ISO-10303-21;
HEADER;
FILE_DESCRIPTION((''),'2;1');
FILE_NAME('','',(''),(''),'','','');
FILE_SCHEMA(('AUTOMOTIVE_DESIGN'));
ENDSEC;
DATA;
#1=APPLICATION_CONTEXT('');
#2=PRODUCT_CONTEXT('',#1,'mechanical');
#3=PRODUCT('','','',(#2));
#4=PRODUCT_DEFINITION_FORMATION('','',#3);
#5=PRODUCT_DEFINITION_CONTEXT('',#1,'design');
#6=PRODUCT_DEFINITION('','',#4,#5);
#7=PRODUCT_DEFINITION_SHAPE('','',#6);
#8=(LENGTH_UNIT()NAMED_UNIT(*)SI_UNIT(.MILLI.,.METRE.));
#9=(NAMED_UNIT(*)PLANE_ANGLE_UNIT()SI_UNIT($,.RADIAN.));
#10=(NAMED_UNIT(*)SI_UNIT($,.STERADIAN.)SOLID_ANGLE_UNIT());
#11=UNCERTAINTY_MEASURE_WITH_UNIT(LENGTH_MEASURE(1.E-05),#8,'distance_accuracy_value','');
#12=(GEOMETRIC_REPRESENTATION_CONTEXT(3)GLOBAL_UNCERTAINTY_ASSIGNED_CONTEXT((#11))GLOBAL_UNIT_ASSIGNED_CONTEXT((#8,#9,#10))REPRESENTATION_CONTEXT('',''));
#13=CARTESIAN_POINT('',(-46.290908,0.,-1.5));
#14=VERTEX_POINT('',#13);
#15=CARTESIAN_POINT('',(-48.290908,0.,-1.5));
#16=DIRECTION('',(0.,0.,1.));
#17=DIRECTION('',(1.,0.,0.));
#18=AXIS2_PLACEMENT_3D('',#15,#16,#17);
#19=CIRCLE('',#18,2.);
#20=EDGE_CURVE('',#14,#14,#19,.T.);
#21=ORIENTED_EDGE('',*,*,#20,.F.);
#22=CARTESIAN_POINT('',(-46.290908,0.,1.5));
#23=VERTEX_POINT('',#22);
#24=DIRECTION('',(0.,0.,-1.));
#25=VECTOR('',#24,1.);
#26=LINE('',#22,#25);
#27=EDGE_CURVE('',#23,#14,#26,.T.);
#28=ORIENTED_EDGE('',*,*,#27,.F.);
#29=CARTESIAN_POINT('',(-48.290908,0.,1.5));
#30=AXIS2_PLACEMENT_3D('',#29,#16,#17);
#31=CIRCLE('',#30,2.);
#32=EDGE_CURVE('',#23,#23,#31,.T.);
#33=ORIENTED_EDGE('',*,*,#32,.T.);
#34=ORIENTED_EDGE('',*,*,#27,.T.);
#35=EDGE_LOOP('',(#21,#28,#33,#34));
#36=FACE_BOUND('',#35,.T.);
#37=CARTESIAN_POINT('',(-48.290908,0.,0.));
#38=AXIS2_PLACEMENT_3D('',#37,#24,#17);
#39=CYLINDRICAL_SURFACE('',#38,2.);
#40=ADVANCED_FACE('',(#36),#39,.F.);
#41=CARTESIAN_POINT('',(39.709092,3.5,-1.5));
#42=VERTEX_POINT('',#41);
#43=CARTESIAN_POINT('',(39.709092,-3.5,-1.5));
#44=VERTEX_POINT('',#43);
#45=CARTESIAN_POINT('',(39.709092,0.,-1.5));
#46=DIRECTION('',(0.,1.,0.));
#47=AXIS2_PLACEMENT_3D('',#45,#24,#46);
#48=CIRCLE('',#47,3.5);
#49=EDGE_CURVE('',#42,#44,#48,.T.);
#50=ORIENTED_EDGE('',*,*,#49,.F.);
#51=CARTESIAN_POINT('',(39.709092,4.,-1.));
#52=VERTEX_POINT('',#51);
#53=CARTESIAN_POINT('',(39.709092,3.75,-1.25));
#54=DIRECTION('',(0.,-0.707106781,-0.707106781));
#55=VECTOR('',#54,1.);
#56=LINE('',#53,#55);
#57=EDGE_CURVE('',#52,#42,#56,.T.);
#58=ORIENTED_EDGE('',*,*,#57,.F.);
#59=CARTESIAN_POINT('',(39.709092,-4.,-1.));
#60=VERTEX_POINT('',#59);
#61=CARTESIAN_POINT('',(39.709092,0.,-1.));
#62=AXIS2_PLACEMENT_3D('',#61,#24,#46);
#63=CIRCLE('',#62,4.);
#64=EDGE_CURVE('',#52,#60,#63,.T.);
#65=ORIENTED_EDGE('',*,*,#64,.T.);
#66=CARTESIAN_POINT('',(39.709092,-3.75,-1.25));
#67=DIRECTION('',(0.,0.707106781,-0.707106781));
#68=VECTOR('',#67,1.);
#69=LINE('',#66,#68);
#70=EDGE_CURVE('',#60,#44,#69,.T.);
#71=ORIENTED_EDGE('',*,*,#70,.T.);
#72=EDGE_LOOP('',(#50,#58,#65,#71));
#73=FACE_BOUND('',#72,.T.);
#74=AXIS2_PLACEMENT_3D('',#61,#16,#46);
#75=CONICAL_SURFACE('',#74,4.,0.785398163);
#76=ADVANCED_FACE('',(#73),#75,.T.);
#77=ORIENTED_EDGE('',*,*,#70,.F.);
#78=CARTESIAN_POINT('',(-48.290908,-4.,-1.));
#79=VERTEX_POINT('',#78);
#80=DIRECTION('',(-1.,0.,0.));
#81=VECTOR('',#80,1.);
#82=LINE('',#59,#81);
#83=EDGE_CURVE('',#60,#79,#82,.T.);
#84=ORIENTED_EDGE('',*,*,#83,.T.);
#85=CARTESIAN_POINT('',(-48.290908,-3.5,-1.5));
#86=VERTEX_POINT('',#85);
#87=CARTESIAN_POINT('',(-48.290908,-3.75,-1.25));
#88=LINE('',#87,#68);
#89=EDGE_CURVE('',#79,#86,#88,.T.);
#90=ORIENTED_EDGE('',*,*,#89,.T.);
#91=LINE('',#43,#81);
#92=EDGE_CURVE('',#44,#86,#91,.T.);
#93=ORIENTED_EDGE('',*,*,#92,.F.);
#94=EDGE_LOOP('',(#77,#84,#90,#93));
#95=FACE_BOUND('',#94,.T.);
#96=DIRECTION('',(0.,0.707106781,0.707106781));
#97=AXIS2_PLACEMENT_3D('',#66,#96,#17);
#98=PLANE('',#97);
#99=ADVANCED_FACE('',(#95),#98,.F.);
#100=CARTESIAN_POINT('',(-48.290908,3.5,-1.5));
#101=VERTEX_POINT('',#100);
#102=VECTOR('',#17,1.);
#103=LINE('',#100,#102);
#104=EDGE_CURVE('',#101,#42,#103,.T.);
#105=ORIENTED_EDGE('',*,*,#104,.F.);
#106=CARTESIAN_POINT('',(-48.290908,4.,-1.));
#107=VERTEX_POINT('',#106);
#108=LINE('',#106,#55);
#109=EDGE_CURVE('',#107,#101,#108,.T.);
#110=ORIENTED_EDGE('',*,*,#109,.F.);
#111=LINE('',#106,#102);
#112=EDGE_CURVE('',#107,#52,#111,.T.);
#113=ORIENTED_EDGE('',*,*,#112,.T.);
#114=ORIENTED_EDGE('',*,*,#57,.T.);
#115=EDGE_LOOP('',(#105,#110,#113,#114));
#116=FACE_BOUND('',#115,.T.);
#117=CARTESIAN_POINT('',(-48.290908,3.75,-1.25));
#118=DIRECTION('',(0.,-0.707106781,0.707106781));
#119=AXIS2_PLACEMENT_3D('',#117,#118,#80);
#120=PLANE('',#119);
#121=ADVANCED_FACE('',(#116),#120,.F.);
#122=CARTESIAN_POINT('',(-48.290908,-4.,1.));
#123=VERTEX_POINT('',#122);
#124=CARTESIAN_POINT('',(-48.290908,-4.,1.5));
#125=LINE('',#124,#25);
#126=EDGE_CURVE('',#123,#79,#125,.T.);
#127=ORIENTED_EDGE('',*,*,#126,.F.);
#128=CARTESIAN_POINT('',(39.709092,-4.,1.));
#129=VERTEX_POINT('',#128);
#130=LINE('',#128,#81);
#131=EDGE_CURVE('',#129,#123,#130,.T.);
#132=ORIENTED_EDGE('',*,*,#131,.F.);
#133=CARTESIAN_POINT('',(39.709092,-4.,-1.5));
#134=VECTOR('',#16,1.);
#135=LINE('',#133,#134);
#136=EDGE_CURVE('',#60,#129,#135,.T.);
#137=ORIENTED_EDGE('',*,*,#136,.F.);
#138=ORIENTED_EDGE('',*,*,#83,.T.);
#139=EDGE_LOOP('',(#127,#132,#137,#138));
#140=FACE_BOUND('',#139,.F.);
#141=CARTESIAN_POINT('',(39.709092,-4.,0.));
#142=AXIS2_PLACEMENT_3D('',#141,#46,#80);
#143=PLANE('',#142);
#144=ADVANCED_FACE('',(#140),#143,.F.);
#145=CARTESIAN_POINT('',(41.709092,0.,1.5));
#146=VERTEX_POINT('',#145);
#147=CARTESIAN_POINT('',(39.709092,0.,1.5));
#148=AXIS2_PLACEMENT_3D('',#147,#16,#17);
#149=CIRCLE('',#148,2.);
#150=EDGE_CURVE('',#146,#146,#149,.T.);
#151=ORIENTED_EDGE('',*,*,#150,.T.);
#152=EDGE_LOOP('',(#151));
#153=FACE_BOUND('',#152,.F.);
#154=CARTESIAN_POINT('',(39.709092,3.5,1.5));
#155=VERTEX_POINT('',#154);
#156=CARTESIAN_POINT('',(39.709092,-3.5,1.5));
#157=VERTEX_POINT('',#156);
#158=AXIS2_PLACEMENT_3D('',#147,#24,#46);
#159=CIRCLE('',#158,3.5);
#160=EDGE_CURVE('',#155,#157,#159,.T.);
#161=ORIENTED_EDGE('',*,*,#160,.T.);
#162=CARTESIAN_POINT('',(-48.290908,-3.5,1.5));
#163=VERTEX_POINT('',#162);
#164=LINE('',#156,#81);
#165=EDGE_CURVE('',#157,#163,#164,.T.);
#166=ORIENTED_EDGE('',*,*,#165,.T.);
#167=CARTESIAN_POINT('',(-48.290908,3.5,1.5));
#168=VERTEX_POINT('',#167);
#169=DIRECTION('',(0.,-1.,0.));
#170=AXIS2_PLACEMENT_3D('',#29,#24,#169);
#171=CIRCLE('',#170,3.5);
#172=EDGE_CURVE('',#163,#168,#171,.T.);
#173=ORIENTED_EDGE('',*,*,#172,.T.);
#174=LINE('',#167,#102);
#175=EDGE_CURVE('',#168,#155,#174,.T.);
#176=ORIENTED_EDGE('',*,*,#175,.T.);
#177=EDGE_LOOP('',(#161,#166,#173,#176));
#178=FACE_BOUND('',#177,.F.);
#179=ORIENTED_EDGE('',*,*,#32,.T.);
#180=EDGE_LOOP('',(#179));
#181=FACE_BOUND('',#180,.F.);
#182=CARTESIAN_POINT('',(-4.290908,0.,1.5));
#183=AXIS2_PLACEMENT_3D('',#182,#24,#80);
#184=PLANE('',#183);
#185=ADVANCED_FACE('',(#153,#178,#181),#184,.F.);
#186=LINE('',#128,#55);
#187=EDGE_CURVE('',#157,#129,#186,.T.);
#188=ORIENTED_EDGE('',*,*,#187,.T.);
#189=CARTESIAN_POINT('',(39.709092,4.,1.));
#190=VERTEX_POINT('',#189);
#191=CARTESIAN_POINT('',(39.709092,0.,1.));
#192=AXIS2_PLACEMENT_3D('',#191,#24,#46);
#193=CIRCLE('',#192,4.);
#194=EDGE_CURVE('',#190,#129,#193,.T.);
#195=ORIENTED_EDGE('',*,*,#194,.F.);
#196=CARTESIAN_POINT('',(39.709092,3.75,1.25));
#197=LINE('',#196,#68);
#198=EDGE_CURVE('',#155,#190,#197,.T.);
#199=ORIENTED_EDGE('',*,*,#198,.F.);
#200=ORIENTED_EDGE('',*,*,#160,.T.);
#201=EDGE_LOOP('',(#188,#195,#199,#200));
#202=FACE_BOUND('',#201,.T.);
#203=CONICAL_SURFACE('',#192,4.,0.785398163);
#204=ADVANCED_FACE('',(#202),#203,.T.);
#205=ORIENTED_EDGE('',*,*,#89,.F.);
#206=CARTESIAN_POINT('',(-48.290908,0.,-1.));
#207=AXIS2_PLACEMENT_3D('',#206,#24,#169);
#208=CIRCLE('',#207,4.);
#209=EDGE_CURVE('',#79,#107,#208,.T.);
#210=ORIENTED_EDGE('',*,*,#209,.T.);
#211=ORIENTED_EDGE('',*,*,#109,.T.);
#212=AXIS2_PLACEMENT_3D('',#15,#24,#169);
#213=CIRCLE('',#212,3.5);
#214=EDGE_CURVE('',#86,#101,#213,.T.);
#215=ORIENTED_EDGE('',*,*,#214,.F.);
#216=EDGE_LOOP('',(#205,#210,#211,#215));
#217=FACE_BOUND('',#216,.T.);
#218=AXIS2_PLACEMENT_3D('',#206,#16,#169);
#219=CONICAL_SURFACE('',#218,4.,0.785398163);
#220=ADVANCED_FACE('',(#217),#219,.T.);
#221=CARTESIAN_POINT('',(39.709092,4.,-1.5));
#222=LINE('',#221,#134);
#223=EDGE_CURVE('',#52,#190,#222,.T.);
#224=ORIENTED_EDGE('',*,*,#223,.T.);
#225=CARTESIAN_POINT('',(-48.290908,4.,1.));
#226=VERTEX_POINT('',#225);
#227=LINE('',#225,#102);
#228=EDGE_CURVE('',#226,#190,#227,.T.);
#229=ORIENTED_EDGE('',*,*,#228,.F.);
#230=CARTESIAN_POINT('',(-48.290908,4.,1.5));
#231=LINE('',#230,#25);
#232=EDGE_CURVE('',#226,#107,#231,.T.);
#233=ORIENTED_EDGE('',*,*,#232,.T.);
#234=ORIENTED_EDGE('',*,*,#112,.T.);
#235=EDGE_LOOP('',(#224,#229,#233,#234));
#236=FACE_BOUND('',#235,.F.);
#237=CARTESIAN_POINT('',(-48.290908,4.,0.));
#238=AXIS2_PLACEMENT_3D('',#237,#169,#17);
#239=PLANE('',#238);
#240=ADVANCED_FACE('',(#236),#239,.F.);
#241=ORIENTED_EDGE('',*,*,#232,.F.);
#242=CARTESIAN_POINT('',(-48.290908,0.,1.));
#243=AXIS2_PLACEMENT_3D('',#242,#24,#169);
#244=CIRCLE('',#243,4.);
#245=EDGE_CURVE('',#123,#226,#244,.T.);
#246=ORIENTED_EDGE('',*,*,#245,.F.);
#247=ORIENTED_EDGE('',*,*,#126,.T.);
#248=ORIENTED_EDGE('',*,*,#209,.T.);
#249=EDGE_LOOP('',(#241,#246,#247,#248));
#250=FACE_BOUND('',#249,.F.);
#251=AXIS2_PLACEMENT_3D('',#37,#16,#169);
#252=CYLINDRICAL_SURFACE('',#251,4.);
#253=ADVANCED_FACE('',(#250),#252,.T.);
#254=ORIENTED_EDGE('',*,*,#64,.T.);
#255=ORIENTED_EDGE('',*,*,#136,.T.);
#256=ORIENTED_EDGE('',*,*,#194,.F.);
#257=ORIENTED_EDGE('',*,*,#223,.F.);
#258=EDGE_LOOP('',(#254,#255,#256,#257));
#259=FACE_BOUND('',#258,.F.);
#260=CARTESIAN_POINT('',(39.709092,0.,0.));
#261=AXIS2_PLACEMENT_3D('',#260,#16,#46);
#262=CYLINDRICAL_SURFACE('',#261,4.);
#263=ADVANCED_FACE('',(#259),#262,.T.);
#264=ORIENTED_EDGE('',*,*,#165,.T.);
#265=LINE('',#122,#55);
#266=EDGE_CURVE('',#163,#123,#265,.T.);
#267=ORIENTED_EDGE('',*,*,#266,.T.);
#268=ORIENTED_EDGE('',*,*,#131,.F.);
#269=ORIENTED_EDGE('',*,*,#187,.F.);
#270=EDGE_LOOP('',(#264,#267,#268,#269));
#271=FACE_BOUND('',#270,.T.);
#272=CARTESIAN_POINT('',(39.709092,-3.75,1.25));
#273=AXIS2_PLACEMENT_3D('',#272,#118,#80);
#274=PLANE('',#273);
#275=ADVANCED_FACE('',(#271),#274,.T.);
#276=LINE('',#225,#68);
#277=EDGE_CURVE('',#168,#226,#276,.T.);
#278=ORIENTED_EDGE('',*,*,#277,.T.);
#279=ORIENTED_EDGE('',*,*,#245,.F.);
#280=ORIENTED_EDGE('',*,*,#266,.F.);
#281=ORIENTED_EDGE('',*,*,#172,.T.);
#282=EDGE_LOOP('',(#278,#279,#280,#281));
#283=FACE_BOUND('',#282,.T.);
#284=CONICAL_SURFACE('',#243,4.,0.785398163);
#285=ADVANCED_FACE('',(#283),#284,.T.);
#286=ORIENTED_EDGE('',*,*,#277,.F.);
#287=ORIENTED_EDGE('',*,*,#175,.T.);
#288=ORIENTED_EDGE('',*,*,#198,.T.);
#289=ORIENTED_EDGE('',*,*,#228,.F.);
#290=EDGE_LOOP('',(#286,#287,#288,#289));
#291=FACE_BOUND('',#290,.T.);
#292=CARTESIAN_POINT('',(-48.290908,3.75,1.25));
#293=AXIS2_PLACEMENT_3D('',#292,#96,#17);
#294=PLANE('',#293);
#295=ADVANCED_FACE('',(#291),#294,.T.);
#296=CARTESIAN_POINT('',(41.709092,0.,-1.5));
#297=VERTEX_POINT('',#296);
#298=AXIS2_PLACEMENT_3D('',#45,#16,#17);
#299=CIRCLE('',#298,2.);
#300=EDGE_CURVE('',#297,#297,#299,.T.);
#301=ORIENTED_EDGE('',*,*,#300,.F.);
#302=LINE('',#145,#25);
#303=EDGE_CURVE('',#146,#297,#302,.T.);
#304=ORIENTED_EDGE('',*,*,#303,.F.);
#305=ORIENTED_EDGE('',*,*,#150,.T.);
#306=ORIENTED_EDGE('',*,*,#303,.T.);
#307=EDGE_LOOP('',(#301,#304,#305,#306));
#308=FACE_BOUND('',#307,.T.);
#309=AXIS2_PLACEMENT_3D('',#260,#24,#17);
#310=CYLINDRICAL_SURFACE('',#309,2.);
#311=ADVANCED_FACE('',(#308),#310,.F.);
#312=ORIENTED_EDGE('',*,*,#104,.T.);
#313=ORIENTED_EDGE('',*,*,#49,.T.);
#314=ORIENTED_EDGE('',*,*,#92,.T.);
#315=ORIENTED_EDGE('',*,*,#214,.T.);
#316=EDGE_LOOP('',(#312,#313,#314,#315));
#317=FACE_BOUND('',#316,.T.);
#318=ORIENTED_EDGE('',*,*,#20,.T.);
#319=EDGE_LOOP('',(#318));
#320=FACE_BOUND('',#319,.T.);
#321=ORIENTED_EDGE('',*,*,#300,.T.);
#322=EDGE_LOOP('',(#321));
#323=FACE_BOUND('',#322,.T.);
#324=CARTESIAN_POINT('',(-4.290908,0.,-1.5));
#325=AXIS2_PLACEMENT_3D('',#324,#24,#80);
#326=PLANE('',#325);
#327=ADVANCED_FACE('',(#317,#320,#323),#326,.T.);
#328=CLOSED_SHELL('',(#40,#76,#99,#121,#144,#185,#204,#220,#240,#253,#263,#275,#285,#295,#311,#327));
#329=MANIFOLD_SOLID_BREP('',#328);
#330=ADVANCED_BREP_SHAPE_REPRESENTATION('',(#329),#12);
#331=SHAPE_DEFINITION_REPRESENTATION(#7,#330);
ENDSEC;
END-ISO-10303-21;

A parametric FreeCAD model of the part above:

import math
import FreeCAD as App
import Part
import Sketcher
from FreeCAD import Vector
Q = App.Units.Quantity


def edges_at(feature, points):
    """Names of the edges that pass closest to the given points."""
    edges = feature.Shape.Edges
    near = lambda p: min(range(len(edges)), key=lambda i: edges[i].distToShape(Part.Vertex(*p))[0])
    return sorted({f"Edge{near(p) + 1}" for p in points})

doc = App.newDocument("Part")
body = doc.addObject("PartDesign::Body", "Body")

# Sketch on XY plane
sketch1 = doc.addObject("Sketcher::SketchObject", "Sketch")
body.addObject(sketch1)
sketch1.AttachmentSupport = (doc.XY_Plane, [""])
sketch1.MapMode = "FlatFace"
sketch1.addGeometry(Part.LineSegment(Vector(-48.290908, -4, 0), Vector(39.709092, -4, 0)), False)
sketch1.addGeometry(Part.ArcOfCircle(Part.Circle(Vector(39.709092, 0, 0), Vector(0, 0, 1), 4), math.radians(-90), math.radians(90)), False)
sketch1.addGeometry(Part.LineSegment(Vector(39.709092, 4, 0), Vector(-48.290908, 4, 0)), False)
sketch1.addGeometry(Part.ArcOfCircle(Part.Circle(Vector(-48.290908, 0, 0), Vector(0, 0, 1), 4), math.radians(90), math.radians(270)), False)
sketch1.addGeometry(Part.Circle(Vector(39.709092, 0, 0), Vector(0, 0, 1), 2), False)
sketch1.addGeometry(Part.Circle(Vector(-48.290908, 0, 0), Vector(0, 0, 1), 2), False)
sketch1.addConstraint(Sketcher.Constraint("Tangent", 0, 2, 1, 1))
sketch1.addConstraint(Sketcher.Constraint("Tangent", 1, 2, 2, 1))
sketch1.addConstraint(Sketcher.Constraint("Tangent", 2, 2, 3, 1))
sketch1.addConstraint(Sketcher.Constraint("Tangent", 3, 2, 0, 1))
sketch1.addConstraint(Sketcher.Constraint("Horizontal", 0))
sketch1.addConstraint(Sketcher.Constraint("Horizontal", 2))
sketch1.addConstraint(Sketcher.Constraint("Coincident", 4, 3, 1, 3))
sketch1.addConstraint(Sketcher.Constraint("Coincident", 5, 3, 3, 3))
sketch1.addConstraint(Sketcher.Constraint("Equal", 4, 5))
sketch1.addConstraint(Sketcher.Constraint("PointOnObject", 1, 3, -1))
sketch1.addConstraint(Sketcher.Constraint("Diameter", 4, Q("4 mm")))
sketch1.addConstraint(Sketcher.Constraint("Radius", 1, Q("4 mm")))
sketch1.addConstraint(Sketcher.Constraint("DistanceX", 0, 1, 0, 2, Q("88 mm")))
sketch1.addConstraint(Sketcher.Constraint("DistanceX", -1, 1, 1, 3, Q("39.709092 mm")))
pad1 = doc.addObject("PartDesign::Pad", "Pad")
body.addObject(pad1)
pad1.Profile = sketch1
pad1.Length = 3
pad1.Midplane = True
doc.recompute()

chamfer = doc.addObject("PartDesign::Chamfer", "Chamfer")
body.addObject(chamfer)
chamfer.Base = (pad1, edges_at(pad1, [
    (-52.291, 0, 1.5),
    (-4.291, -4, 1.5),
    (43.709, 0, 1.5),
    (-4.291, -4, -1.5),
    (-52.291, 0, -1.5),
    (-4.291, 4, -1.5),
    (43.709, 0, -1.5),
    (-4.291, 4, 1.5),
]))
chamfer.Size = 0.5

doc.recompute()
